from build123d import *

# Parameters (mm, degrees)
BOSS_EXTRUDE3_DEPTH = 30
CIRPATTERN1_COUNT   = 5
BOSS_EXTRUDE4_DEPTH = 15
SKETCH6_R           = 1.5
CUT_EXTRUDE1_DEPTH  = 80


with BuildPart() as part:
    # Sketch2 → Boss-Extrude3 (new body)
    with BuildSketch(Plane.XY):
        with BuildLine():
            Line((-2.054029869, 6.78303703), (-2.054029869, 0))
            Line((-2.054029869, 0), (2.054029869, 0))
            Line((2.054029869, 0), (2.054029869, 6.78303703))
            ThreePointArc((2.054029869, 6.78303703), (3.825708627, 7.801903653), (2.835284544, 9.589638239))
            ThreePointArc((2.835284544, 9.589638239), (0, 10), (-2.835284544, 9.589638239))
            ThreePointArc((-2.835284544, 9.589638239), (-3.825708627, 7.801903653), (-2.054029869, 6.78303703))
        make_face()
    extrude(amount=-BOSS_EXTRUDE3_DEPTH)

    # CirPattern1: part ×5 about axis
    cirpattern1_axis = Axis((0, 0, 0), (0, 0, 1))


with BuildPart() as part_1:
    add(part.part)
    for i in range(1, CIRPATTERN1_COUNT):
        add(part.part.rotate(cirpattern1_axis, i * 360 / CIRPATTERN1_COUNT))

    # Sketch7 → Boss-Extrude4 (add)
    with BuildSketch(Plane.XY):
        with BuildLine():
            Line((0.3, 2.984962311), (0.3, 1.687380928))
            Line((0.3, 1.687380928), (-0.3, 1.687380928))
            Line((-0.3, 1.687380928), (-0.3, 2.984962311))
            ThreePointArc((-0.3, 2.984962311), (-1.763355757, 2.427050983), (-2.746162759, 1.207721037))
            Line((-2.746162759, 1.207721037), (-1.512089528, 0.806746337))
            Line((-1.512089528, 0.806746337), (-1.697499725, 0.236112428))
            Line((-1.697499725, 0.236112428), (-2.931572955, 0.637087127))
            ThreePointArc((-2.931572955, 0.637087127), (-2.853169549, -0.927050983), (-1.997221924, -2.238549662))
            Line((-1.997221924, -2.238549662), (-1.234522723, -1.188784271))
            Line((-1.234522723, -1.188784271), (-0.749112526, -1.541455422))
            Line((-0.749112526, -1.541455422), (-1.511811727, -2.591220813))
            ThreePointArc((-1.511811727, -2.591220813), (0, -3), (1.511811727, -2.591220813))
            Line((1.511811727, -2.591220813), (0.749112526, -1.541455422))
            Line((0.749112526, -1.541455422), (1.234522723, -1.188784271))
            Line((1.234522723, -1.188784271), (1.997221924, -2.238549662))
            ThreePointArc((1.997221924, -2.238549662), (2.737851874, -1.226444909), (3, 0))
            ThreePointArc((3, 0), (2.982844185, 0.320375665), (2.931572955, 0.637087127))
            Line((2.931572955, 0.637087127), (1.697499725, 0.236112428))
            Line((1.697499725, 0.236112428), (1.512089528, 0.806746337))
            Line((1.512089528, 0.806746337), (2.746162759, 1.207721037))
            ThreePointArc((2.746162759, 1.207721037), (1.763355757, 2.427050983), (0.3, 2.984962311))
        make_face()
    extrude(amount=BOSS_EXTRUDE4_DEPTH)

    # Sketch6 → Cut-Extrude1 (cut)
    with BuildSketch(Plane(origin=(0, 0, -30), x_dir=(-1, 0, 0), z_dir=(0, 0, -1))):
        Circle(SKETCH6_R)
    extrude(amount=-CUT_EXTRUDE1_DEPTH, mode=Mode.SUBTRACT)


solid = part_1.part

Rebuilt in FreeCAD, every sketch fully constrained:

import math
import FreeCAD as App
import Part
import Sketcher

V = App.Vector
Q = App.Units.Quantity

doc = App.newDocument("Part")
body = doc.addObject("PartDesign::Body", "Body")

sketch1 = body.newObject("Sketcher::SketchObject", "Sketch")
sketch1.AttachmentSupport = (doc.getObject("XY_Plane"), [""])
sketch1.MapMode = "FlatFace"
sketch1.addGeometry([
    Part.LineSegment(V(-2.05403, 6.783037, 0), V(-2.05403, 0, 0)),
    Part.LineSegment(V(-2.05403, 0, 0), V(2.05403, 0, 0)),
    Part.LineSegment(V(2.05403, 0, 0), V(2.05403, 6.783037, 0)),
    Part.ArcOfCircle(Part.Circle(V(2.422229, 8.192581, 0), V(0, 0, 1), 1.456841), math.radians(-104.639591), math.radians(73.529093)),
    Part.ArcOfCircle(Part.Circle(V(0, 0, 0), V(0, 0, 1), 10), math.radians(73.529093), math.radians(106.470907)),
    Part.ArcOfCircle(Part.Circle(V(-2.422229, 8.192581, 0), V(0, 0, 1), 1.456841), math.radians(106.470907), math.radians(284.639591)),
], False)
sketch1.addConstraint([
    Sketcher.Constraint("Coincident", 0, 2, 1, 1),
    Sketcher.Constraint("Coincident", 1, 2, 2, 1),
    Sketcher.Constraint("Coincident", 2, 2, 3, 1),
    Sketcher.Constraint("Tangent", 3, 2, 4, 1),
    Sketcher.Constraint("Tangent", 4, 2, 5, 1),
    Sketcher.Constraint("Coincident", 5, 2, 0, 1),
    Sketcher.Constraint("Vertical", 0),
    Sketcher.Constraint("Horizontal", 1),
    Sketcher.Constraint("Vertical", 2),
    Sketcher.Constraint("Coincident", 4, 3, -1, 1),
    Sketcher.Constraint("Equal", 3, 5),
    Sketcher.Constraint("Symmetric", 0, 2, 1, 2, -1, 1),
    Sketcher.Constraint("Horizontal", 3, 3, 5, 3),
    Sketcher.Constraint("Radius", 4, 10.0),
    Sketcher.Constraint("Radius", 3, 1.456841),
    Sketcher.Constraint("DistanceX", 1, 1, 1, 2, 4.10806),
    Sketcher.Constraint("DistanceX", 5, 3, 0, 2, 0.368199),
])
pad1 = body.newObject("PartDesign::Pad", "Pad")
pad1.Profile = sketch1
pad1.Length = 30
pad1.Reversed = True
body2 = doc.addObject("PartDesign::Body", "Body001")
doc.recompute()

body2.BaseFeature = body
doc.recompute()

body3 = doc.addObject("PartDesign::Body", "Body002")
body3.BaseFeature = body
body3.Placement = App.Placement(V(0, 0, 0), App.Rotation(V(0, 0, 1), 72))
boolean = body2.newObject("PartDesign::Boolean", "Boolean")
boolean.Type = "Fuse"
boolean.addObjects([body3])
doc.recompute()

body4 = doc.addObject("PartDesign::Body", "Body003")
body4.BaseFeature = body
body4.Placement = App.Placement(V(0, 0, 0), App.Rotation(V(0, 0, 1), 144))
boolean2 = body2.newObject("PartDesign::Boolean", "Boolean001")
boolean2.Type = "Fuse"
boolean2.addObjects([body4])
doc.recompute()

body5 = doc.addObject("PartDesign::Body", "Body004")
body5.BaseFeature = body
body5.Placement = App.Placement(V(0, 0, 0), App.Rotation(V(0, 0, 1), 216))
boolean3 = body2.newObject("PartDesign::Boolean", "Boolean002")
boolean3.Type = "Fuse"
boolean3.addObjects([body5])
doc.recompute()

body.Placement = App.Placement(V(0, 0, 0), App.Rotation(V(0, 0, 1), 288))
boolean4 = body2.newObject("PartDesign::Boolean", "Boolean003")
boolean4.Type = "Fuse"
boolean4.addObjects([body])

sketch2 = body2.newObject("Sketcher::SketchObject", "Sketch001")
sketch2.AttachmentSupport = (doc.getObject("XY_Plane001"), [""])
sketch2.MapMode = "FlatFace"
sketch2.addGeometry([
    Part.LineSegment(V(0.3, 2.984962, 0), V(0.3, 1.687381, 0)),
    Part.LineSegment(V(0.3, 1.687381, 0), V(-0.3, 1.687381, 0)),
    Part.LineSegment(V(-0.3, 1.687381, 0), V(-0.3, 2.984962, 0)),
    Part.ArcOfCircle(Part.Circle(V(0, 0, 0), V(0, 0, 1), 3), math.radians(95.73917), math.radians(156.26083)),
    Part.LineSegment(V(-2.746163, 1.207721, 0), V(-1.51209, 0.806746, 0)),
    Part.LineSegment(V(-1.51209, 0.806746, 0), V(-1.6975, 0.236112, 0)),
    Part.LineSegment(V(-1.6975, 0.236112, 0), V(-2.931573, 0.637087, 0)),
    Part.ArcOfCircle(Part.Circle(V(0, 0, 0), V(0, 0, 1), 3), math.radians(167.73917), math.radians(228.26083)),
    Part.LineSegment(V(-1.997222, -2.23855, 0), V(-1.234523, -1.188784, 0)),
    Part.LineSegment(V(-1.234523, -1.188784, 0), V(-0.749113, -1.541455, 0)),
    Part.LineSegment(V(-0.749113, -1.541455, 0), V(-1.511812, -2.591221, 0)),
    Part.ArcOfCircle(Part.Circle(V(0, 0, 0), V(0, 0, 1), 3), math.radians(-120.26083), math.radians(-59.73917)),
    Part.LineSegment(V(1.511812, -2.591221, 0), V(0.749113, -1.541455, 0)),
    Part.LineSegment(V(0.749113, -1.541455, 0), V(1.234523, -1.188784, 0)),
    Part.LineSegment(V(1.234523, -1.188784, 0), V(1.997222, -2.23855, 0)),
    Part.ArcOfCircle(Part.Circle(V(0, 0, 0), V(0, 0, 1), 3), math.radians(-48.260829), math.radians(0)),
    Part.ArcOfCircle(Part.Circle(V(0, 0, 0), V(0, 0, 1), 3), math.radians(0), math.radians(12.26083)),
    Part.LineSegment(V(2.931573, 0.637087, 0), V(1.6975, 0.236112, 0)),
    Part.LineSegment(V(1.6975, 0.236112, 0), V(1.51209, 0.806746, 0)),
    Part.LineSegment(V(1.51209, 0.806746, 0), V(2.746163, 1.207721, 0)),
    Part.ArcOfCircle(Part.Circle(V(0, 0, 0), V(0, 0, 1), 3), math.radians(23.73917), math.radians(84.26083)),
], False)
sketch2.addConstraint([
    Sketcher.Constraint("Coincident", 0, 2, 1, 1),
    Sketcher.Constraint("Coincident", 1, 2, 2, 1),
    Sketcher.Constraint("Coincident", 2, 2, 3, 1),
    Sketcher.Constraint("Coincident", 3, 2, 4, 1),
    Sketcher.Constraint("Coincident", 4, 2, 5, 1),
    Sketcher.Constraint("Coincident", 5, 2, 6, 1),
    Sketcher.Constraint("Coincident", 6, 2, 7, 1),
    Sketcher.Constraint("Coincident", 7, 2, 8, 1),
    Sketcher.Constraint("Coincident", 8, 2, 9, 1),
    Sketcher.Constraint("Coincident", 9, 2, 10, 1),
    Sketcher.Constraint("Coincident", 10, 2, 11, 1),
    Sketcher.Constraint("Coincident", 11, 2, 12, 1),
    Sketcher.Constraint("Coincident", 12, 2, 13, 1),
    Sketcher.Constraint("Coincident", 13, 2, 14, 1),
    Sketcher.Constraint("Coincident", 14, 2, 15, 1),
    Sketcher.Constraint("Tangent", 15, 2, 16, 1),
    Sketcher.Constraint("Coincident", 16, 2, 17, 1),
    Sketcher.Constraint("Coincident", 17, 2, 18, 1),
    Sketcher.Constraint("Coincident", 18, 2, 19, 1),
    Sketcher.Constraint("Coincident", 19, 2, 20, 1),
    Sketcher.Constraint("Coincident", 20, 2, 0, 1),
    Sketcher.Constraint("Vertical", 0),
    Sketcher.Constraint("Horizontal", 1),
    Sketcher.Constraint("Vertical", 2),
    Sketcher.Constraint("Coincident", 3, 3, -1, 1),
    Sketcher.Constraint("Coincident", 7, 3, -1, 1),
    Sketcher.Constraint("Coincident", 11, 3, -1, 1),
    Sketcher.Constraint("Coincident", 15, 3, -1, 1),
    Sketcher.Constraint("Coincident", 20, 3, -1, 1),
    Sketcher.Constraint("Equal", 3, 7),
    Sketcher.Constraint("Equal", 7, 11),
    Sketcher.Constraint("Equal", 11, 15),
    Sketcher.Constraint("Equal", 15, 16),
    Sketcher.Constraint("Equal", 16, 20),
    Sketcher.Constraint("Symmetric", 9, 2, 12, 2, -2),
    Sketcher.Constraint("Symmetric", 8, 2, 13, 2, -2),
    Sketcher.Constraint("Symmetric", 5, 2, 17, 2, -2),
    Sketcher.Constraint("Symmetric", 4, 2, 18, 2, -2),
    Sketcher.Constraint("PointOnObject", 15, 2, -1),
    Sketcher.Constraint("Perpendicular", 4, 5),
    Sketcher.Constraint("Perpendicular", 5, 6),
    Sketcher.Constraint("Perpendicular", 8, 9),
    Sketcher.Constraint("Perpendicular", 9, 10),
    Sketcher.Constraint("Perpendicular", 12, 13),
    Sketcher.Constraint("Perpendicular", 13, 14),
    Sketcher.Constraint("Perpendicular", 17, 18),
    Sketcher.Constraint("Perpendicular", 18, 19),
    Sketcher.Constraint("Horizontal", 2, 2, 20, 2),
    Sketcher.Constraint("Equal", 4, 6),
    Sketcher.Constraint("Equal", 6, 8),
    Sketcher.Constraint("Equal", 5, 9),
    Sketcher.Constraint("Equal", 8, 10),
    Sketcher.Constraint("Radius", 3, 3.0),
    Sketcher.Constraint("Angle", 4, Q("-18 deg")),
    Sketcher.Constraint("Angle", 8, Q("54 deg")),
    Sketcher.Constraint("DistanceX", 1, 2, 1, 1, 0.6),
    Sketcher.Constraint("Distance", 5, 0.6),
    Sketcher.Constraint("DistanceY", 0, 2, 0, 1, 1.297581),
    Sketcher.Constraint("DistanceX", 5, 2, -1, 1, 1.6975),
])
pad2 = body2.newObject("PartDesign::Pad", "Pad001")
pad2.Profile = sketch2
pad2.Length = 15

sketch3 = body2.newObject("Sketcher::SketchObject", "Sketch002")
sketch3.AttachmentSupport = (doc.getObject("XY_Plane001"), [""])
sketch3.MapMode = "FlatFace"
sketch3.AttachmentOffset = App.Placement(V(0, 0, -30), App.Rotation())
sketch3.addGeometry(Part.Circle(V(0, 0, 0), V(0, 0, 1), 1.5), False)
sketch3.addConstraint([
    Sketcher.Constraint("Coincident", 0, 3, -1, 1),
    Sketcher.Constraint("Diameter", 0, 3.0),
])
pocket1 = body2.newObject("PartDesign::Pocket", "Pocket")
pocket1.Profile = sketch3
pocket1.Length = 80
pocket1.Reversed = True

doc.recompute()
